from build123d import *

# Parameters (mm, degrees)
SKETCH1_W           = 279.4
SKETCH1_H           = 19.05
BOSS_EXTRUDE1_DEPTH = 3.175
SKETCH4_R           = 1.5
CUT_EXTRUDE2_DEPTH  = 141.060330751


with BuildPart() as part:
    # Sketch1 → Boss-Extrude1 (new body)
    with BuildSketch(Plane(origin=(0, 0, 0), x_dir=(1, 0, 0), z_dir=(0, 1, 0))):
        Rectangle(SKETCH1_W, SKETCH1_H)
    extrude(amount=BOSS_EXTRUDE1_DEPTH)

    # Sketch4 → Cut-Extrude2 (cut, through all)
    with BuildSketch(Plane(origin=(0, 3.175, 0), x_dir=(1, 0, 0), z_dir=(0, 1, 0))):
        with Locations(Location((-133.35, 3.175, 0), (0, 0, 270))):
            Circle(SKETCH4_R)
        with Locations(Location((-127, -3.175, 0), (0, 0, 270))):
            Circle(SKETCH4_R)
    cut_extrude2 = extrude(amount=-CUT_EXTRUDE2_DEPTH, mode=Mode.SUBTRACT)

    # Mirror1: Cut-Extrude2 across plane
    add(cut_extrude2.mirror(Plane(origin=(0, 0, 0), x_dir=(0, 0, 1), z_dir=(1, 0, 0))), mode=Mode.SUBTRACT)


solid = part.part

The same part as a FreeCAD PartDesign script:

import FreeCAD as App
import Part
import Sketcher
from FreeCAD import Vector
Q = App.Units.Quantity

doc = App.newDocument("Part")
params = doc.addObject("Spreadsheet::Sheet", "Params")
for row, (alias, value) in enumerate([
    ("sketch1_width", "11 in"),
    ("sketch1_height", "0.75 in"),
    ("pad1_length", "0.125 in"),
], start=1):
    params.set(f"A{row}", alias)
    params.set(f"B{row}", "=" + value)
    params.setAlias(f"B{row}", alias)

body = doc.addObject("PartDesign::Body", "Body")

sketch1 = body.newObject("Sketcher::SketchObject", "Sketch")
sketch1.AttachmentSupport = (doc.getObject("XZ_Plane"), [""])
sketch1.MapMode = "FlatFace"
sketch1.addGeometry([
    Part.LineSegment(Vector(-140, -10, 0), Vector(-140, 10, 0)),
    Part.LineSegment(Vector(-140, 10, 0), Vector(140, 10, 0)),
    Part.LineSegment(Vector(140, 10, 0), Vector(140, -10, 0)),
    Part.LineSegment(Vector(140, -10, 0), Vector(-140, -10, 0)),
], False)
sketch1.addConstraint([
    Sketcher.Constraint("Coincident", 0, 2, 1, 1),
    Sketcher.Constraint("Coincident", 1, 2, 2, 1),
    Sketcher.Constraint("Coincident", 2, 2, 3, 1),
    Sketcher.Constraint("Coincident", 3, 2, 0, 1),
    Sketcher.Constraint("Vertical", 0),
    Sketcher.Constraint("Horizontal", 1),
    Sketcher.Constraint("Vertical", 2),
    Sketcher.Constraint("Horizontal", 3),
    Sketcher.Constraint("Symmetric", 0, 2, 2, 2, -1, 1),
    Sketcher.Constraint("DistanceX", 1, 1, 1, 2, Q("11 in")),
    Sketcher.Constraint("DistanceY", 0, 1, 0, 2, Q("0.75 in")),
])
sketch1.setExpression("Constraints[9]", "Params.sketch1_width")
sketch1.setExpression("Constraints[10]", "Params.sketch1_height")
pad1 = body.newObject("PartDesign::Pad", "Pad")
pad1.Profile = sketch1
pad1.setExpression("Length", "Params.pad1_length")
pad1.Reversed = True

sketch2 = body.newObject("Sketcher::SketchObject", "Sketch001")
sketch2.AttachmentSupport = (doc.getObject("XZ_Plane"), [""])
sketch2.MapMode = "FlatFace"
sketch2.AttachmentOffset = App.Placement(Vector(0, 0, -0.125 * 25.4), App.Rotation())
sketch2.addGeometry([
    Part.Circle(Vector(-133.3, -3.2, 0), Vector(0, 0, 1), 1.5),
    Part.Circle(Vector(-127, 3.2, 0), Vector(0, 0, 1), 1.5),
], False)
sketch2.addConstraint([
    Sketcher.Constraint("Equal", 0, 1),
    Sketcher.Constraint("DistanceX", 1, 3, -1, 1, Q("5 in")),
    Sketcher.Constraint("Diameter", 0, 3.0),
    Sketcher.Constraint("DistanceX", 0, 3, -1, 1, Q("5.25 in")),
    Sketcher.Constraint("DistanceY", 0, 3, 1, 3, Q("0.25 in")),
    Sketcher.Constraint("DistanceY", 0, 3, -1, 1, Q("0.125 in")),
])
pocket1 = body.newObject("PartDesign::Pocket", "Pocket")
pocket1.Profile = sketch2
pocket1.Type = "ThroughAll"
pocket1.Reversed = True
doc.recompute()

mirrored = body.newObject("PartDesign::Mirrored", "Mirrored")
mirrored.Originals = [pocket1]
mirrored.MirrorPlane = (doc.getObject("YZ_Plane"), [""])
body.Tip = mirrored

doc.recompute()
